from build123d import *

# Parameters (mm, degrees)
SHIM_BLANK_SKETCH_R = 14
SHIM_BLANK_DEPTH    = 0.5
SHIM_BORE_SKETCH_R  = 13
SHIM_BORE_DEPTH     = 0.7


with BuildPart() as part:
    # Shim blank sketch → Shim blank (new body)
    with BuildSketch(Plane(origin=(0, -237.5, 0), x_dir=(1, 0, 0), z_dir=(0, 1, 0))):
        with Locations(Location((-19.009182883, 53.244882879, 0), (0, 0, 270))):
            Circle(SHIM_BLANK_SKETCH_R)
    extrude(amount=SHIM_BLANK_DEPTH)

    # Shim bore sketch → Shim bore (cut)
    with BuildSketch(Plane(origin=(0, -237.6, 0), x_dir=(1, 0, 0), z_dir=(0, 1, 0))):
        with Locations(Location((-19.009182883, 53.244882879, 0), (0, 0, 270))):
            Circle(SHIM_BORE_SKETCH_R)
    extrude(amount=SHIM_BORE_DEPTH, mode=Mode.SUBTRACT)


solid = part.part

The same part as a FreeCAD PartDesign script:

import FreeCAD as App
import Part
import Sketcher

doc = App.newDocument("Part")
body = doc.addObject("PartDesign::Body", "Body")

# Sketch on XZ plane
sketch1 = body.newObject("Sketcher::SketchObject", "Sketch")
sketch1.AttachmentSupport = (doc.getObject("XZ_Plane"), [""])
sketch1.MapMode = "FlatFace"
sketch1.AttachmentOffset = App.Placement(App.Vector(0, 0, 237.5), App.Rotation())
sketch1.addGeometry(Part.Circle(App.Vector(-19, -53, 0), App.Vector(0, 0, 1), 14), False)
sketch1.addConstraint(Sketcher.Constraint("Diameter", 0, 28.0))
sketch1.addConstraint(Sketcher.Constraint("DistanceX", 0, 3, -1, 1, 19.009183))
sketch1.addConstraint(Sketcher.Constraint("DistanceY", 0, 3, -1, 1, 53.244883))
pad1 = body.newObject("PartDesign::Pad", "Pad")
pad1.Profile = sketch1
pad1.Length = 0.5
pad1.Reversed = True

# Sketch on XZ plane
sketch2 = body.newObject("Sketcher::SketchObject", "Sketch001")
sketch2.AttachmentSupport = (doc.getObject("XZ_Plane"), [""])
sketch2.MapMode = "FlatFace"
sketch2.AttachmentOffset = App.Placement(App.Vector(0, 0, 237.6), App.Rotation())
sketch2.addGeometry(Part.Circle(App.Vector(-19, -53, 0), App.Vector(0, 0, 1), 13), False)
sketch2.addConstraint(Sketcher.Constraint("Diameter", 0, 26.0))
sketch2.addConstraint(Sketcher.Constraint("DistanceX", 0, 3, -1, 1, 19.009183))
sketch2.addConstraint(Sketcher.Constraint("DistanceY", 0, 3, -1, 1, 53.244883))
pocket1 = body.newObject("PartDesign::Pocket", "Pocket")
pocket1.Profile = sketch2
pocket1.Length = 0.7

doc.recompute()
